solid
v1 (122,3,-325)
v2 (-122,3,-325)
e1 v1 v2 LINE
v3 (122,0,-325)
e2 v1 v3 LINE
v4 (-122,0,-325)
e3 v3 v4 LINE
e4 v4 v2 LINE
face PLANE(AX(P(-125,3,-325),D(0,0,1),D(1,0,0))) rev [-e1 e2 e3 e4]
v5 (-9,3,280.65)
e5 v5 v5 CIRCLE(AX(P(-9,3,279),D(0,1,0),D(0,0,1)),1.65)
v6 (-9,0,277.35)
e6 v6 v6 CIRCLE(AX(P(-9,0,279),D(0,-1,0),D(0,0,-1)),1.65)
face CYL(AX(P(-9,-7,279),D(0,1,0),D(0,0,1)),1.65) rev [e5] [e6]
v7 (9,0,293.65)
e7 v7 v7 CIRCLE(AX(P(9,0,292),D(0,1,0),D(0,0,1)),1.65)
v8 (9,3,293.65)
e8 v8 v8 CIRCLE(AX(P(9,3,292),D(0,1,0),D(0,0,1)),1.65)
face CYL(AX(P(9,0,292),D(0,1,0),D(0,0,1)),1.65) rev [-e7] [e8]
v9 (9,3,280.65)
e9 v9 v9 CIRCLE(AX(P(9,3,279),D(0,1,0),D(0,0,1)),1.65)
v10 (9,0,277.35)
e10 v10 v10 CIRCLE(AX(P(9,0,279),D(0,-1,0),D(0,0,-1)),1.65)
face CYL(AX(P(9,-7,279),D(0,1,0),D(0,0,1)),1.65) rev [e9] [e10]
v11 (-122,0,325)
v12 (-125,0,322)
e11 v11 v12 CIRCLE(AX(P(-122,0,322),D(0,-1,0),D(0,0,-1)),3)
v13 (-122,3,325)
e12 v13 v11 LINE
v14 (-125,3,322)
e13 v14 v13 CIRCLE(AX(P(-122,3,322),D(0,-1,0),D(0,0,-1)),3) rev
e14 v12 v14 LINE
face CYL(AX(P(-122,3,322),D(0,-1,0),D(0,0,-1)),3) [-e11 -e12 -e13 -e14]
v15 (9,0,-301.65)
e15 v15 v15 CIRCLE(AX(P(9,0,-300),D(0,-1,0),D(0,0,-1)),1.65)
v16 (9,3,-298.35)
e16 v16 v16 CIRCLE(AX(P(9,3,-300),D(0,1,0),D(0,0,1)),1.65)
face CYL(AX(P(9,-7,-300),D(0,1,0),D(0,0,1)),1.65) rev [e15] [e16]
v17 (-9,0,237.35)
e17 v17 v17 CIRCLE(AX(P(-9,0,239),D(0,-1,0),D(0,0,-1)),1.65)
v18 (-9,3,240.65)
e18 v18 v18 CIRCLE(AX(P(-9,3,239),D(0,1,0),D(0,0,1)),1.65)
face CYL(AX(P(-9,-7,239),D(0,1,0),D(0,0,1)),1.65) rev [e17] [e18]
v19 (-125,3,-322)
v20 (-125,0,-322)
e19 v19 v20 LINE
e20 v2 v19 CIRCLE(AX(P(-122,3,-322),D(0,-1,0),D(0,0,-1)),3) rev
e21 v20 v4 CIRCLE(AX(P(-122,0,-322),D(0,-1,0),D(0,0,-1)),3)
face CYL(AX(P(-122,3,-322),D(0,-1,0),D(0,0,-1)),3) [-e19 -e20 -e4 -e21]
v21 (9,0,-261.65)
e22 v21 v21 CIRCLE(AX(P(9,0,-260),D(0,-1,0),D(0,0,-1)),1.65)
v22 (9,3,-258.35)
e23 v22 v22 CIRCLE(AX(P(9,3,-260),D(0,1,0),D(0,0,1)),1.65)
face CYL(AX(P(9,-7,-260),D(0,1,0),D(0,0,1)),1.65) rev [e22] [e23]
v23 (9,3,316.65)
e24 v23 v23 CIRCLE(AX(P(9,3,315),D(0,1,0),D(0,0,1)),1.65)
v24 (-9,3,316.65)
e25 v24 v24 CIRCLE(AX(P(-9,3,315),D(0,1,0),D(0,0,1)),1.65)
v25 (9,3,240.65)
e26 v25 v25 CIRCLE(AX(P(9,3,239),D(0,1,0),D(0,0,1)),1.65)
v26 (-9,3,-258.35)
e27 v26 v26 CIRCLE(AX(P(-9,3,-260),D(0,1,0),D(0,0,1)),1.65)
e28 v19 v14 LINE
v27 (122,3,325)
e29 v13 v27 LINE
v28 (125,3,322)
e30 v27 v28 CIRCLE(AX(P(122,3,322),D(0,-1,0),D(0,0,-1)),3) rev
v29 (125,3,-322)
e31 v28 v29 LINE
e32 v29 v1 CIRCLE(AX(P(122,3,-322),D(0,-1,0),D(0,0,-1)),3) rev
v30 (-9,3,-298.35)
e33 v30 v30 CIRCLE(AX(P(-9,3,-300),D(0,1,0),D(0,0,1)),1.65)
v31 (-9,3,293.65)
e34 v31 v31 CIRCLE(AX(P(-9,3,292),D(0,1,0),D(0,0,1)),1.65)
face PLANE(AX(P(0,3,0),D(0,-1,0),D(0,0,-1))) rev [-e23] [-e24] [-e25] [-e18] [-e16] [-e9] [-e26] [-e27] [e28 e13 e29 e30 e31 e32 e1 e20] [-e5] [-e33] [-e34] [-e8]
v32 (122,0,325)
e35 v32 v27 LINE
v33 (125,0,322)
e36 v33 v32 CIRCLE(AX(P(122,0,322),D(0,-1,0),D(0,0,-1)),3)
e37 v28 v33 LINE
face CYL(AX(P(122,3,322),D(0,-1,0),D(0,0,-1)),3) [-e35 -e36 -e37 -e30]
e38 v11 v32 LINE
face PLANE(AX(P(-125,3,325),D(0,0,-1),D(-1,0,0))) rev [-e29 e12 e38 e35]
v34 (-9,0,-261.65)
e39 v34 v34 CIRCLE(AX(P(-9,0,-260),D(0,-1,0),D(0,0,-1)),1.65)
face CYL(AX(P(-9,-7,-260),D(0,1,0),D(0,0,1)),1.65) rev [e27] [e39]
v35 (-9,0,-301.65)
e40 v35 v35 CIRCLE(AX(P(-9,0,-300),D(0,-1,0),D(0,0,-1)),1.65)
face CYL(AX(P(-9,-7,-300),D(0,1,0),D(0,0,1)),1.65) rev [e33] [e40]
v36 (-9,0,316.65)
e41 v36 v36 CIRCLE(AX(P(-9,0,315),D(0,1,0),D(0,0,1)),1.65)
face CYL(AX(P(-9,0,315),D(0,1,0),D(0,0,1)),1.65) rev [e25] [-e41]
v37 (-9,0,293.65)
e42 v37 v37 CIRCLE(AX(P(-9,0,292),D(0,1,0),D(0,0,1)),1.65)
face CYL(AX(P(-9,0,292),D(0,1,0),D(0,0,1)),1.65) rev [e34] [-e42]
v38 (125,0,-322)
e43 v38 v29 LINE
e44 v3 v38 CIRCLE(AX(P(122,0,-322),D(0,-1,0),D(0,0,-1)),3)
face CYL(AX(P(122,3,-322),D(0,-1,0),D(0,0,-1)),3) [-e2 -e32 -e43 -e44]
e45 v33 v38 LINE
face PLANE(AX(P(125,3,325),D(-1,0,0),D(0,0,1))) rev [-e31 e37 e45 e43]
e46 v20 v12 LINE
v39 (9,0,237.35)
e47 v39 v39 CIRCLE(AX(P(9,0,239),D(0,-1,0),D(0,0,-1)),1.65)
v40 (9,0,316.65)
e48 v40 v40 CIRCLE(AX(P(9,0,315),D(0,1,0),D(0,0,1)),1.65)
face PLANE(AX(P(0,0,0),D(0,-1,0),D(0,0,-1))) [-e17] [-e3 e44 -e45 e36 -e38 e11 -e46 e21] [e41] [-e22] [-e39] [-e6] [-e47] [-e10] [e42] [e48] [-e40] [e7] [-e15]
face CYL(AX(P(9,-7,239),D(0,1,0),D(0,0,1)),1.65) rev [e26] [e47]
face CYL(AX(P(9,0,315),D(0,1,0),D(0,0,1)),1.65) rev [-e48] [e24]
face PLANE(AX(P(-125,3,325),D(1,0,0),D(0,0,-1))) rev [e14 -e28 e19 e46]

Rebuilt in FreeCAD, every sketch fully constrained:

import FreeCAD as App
import Part
import Sketcher
Q = App.Units.Quantity


def edges_at(feature, points):
    """Names of the edges that pass closest to the given points."""
    edges = feature.Shape.Edges
    near = lambda p: min(range(len(edges)), key=lambda i: edges[i].distToShape(Part.Vertex(*p))[0])
    return sorted({f"Edge{near(p) + 1}" for p in points})

doc = App.newDocument("Part")
params = doc.addObject("Spreadsheet::Sheet", "Params")
for row, (alias, value) in enumerate([
    ("sketch1_width", "250 mm"),
    ("sketch1_height", "650 mm"),
    ("pad1_length", "3 mm"),
    ("sketch2_diameter", "3.3 mm"),
    ("pocket1_length", "10 mm"),
    ("sketch3_diameter", "3.3 mm"),
    ("pocket2_length", "3 mm"),
    ("fillet_radius", "3 mm"),
], start=1):
    params.set(f"A{row}", alias)
    params.set(f"B{row}", "=" + value)
    params.setAlias(f"B{row}", alias)

body = doc.addObject("PartDesign::Body", "Body")

sketch1 = body.newObject("Sketcher::SketchObject", "Sketch")
sketch1.AttachmentSupport = (doc.getObject("XZ_Plane"), [""])
sketch1.MapMode = "FlatFace"
sketch1.addGeometry(Part.LineSegment(App.Vector(-125, -325, 0), App.Vector(-125, 325, 0)), False)
sketch1.addGeometry(Part.LineSegment(App.Vector(-125, 325, 0), App.Vector(125, 325, 0)), False)
sketch1.addGeometry(Part.LineSegment(App.Vector(125, 325, 0), App.Vector(125, -325, 0)), False)
sketch1.addGeometry(Part.LineSegment(App.Vector(125, -325, 0), App.Vector(-125, -325, 0)), False)
sketch1.addConstraint(Sketcher.Constraint("Coincident", 0, 2, 1, 1))
sketch1.addConstraint(Sketcher.Constraint("Coincident", 1, 2, 2, 1))
sketch1.addConstraint(Sketcher.Constraint("Coincident", 2, 2, 3, 1))
sketch1.addConstraint(Sketcher.Constraint("Coincident", 3, 2, 0, 1))
sketch1.addConstraint(Sketcher.Constraint("Vertical", 0))
sketch1.addConstraint(Sketcher.Constraint("Horizontal", 1))
sketch1.addConstraint(Sketcher.Constraint("Vertical", 2))
sketch1.addConstraint(Sketcher.Constraint("Horizontal", 3))
sketch1.addConstraint(Sketcher.Constraint("Symmetric", 0, 2, 2, 2, -1, 1))
sketch1.addConstraint(Sketcher.Constraint("DistanceX", 1, 1, 1, 2, Q("250 mm")))
sketch1.addConstraint(Sketcher.Constraint("DistanceY", 0, 1, 0, 2, Q("650 mm")))
sketch1.setExpression("Constraints[9]", "Params.sketch1_width")
sketch1.setExpression("Constraints[10]", "Params.sketch1_height")
pad1 = body.newObject("PartDesign::Pad", "Pad")
pad1.Profile = sketch1
pad1.setExpression("Length", "Params.pad1_length")
pad1.Reversed = True

sketch2 = body.newObject("Sketcher::SketchObject", "Sketch001")
sketch2.AttachmentSupport = (doc.getObject("XZ_Plane"), [""])
sketch2.MapMode = "FlatFace"
sketch2.AttachmentOffset = App.Placement(App.Vector(0, 0, -3), App.Rotation())
sketch2.addGeometry(Part.Circle(App.Vector(9, 279, 0), App.Vector(0, 0, 1), 1.65), False)
sketch2.addGeometry(Part.Circle(App.Vector(-9, 279, 0), App.Vector(0, 0, 1), 1.65), False)
sketch2.addGeometry(Part.Circle(App.Vector(9, 239, 0), App.Vector(0, 0, 1), 1.65), False)
sketch2.addGeometry(Part.Circle(App.Vector(-9, 239, 0), App.Vector(0, 0, 1), 1.65), False)
sketch2.addGeometry(Part.Circle(App.Vector(9, -300, 0), App.Vector(0, 0, 1), 1.65), False)
sketch2.addGeometry(Part.Circle(App.Vector(-9, -300, 0), App.Vector(0, 0, 1), 1.65), False)
sketch2.addGeometry(Part.Circle(App.Vector(9, -260, 0), App.Vector(0, 0, 1), 1.65), False)
sketch2.addGeometry(Part.Circle(App.Vector(-9, -260, 0), App.Vector(0, 0, 1), 1.65), False)
sketch2.addConstraint(Sketcher.Constraint("Equal", 0, 1))
sketch2.addConstraint(Sketcher.Constraint("Equal", 1, 2))
sketch2.addConstraint(Sketcher.Constraint("Equal", 2, 3))
sketch2.addConstraint(Sketcher.Constraint("Equal", 3, 4))
sketch2.addConstraint(Sketcher.Constraint("Equal", 4, 5))
sketch2.addConstraint(Sketcher.Constraint("Equal", 5, 6))
sketch2.addConstraint(Sketcher.Constraint("Equal", 6, 7))
sketch2.addConstraint(Sketcher.Constraint("Symmetric", 0, 3, 1, 3, -2))
sketch2.addConstraint(Sketcher.Constraint("Symmetric", 2, 3, 3, 3, -2))
sketch2.addConstraint(Sketcher.Constraint("Symmetric", 4, 3, 5, 3, -2))
sketch2.addConstraint(Sketcher.Constraint("Symmetric", 6, 3, 7, 3, -2))
sketch2.addConstraint(Sketcher.Constraint("Vertical", 0, 3, 2, 3))
sketch2.addConstraint(Sketcher.Constraint("Vertical", 2, 3, 4, 3))
sketch2.addConstraint(Sketcher.Constraint("Vertical", 4, 3, 6, 3))
sketch2.addConstraint(Sketcher.Constraint("Diameter", 0, Q("3.3 mm")))
sketch2.addConstraint(Sketcher.Constraint("DistanceX", -1, 1, 0, 3, Q("9 mm")))
sketch2.addConstraint(Sketcher.Constraint("DistanceY", -1, 1, 0, 3, Q("279 mm")))
sketch2.addConstraint(Sketcher.Constraint("DistanceY", -1, 1, 2, 3, Q("239 mm")))
sketch2.addConstraint(Sketcher.Constraint("DistanceY", 4, 3, -1, 1, Q("300 mm")))
sketch2.addConstraint(Sketcher.Constraint("DistanceY", 6, 3, -1, 1, Q("260 mm")))
sketch2.setExpression("Constraints[14]", "Params.sketch2_diameter")
pocket1 = body.newObject("PartDesign::Pocket", "Pocket")
pocket1.Profile = sketch2
pocket1.setExpression("Length", "Params.pocket1_length")
pocket1.Reversed = True

sketch3 = body.newObject("Sketcher::SketchObject", "Sketch002")
sketch3.AttachmentSupport = (doc.getObject("XZ_Plane"), [""])
sketch3.MapMode = "FlatFace"
sketch3.AttachmentOffset = App.Placement(App.Vector(0, 0, -3), App.Rotation())
sketch3.addGeometry(Part.Circle(App.Vector(9, 292, 0), App.Vector(0, 0, 1), 1.65), False)
sketch3.addGeometry(Part.Circle(App.Vector(-9, 292, 0), App.Vector(0, 0, 1), 1.65), False)
sketch3.addGeometry(Part.Circle(App.Vector(-9, 315, 0), App.Vector(0, 0, 1), 1.65), False)
sketch3.addGeometry(Part.Circle(App.Vector(9, 315, 0), App.Vector(0, 0, 1), 1.65), False)
sketch3.addConstraint(Sketcher.Constraint("Equal", 0, 1))
sketch3.addConstraint(Sketcher.Constraint("Equal", 1, 2))
sketch3.addConstraint(Sketcher.Constraint("Equal", 2, 3))
sketch3.addConstraint(Sketcher.Constraint("Symmetric", 0, 3, 1, 3, -2))
sketch3.addConstraint(Sketcher.Constraint("Symmetric", 2, 3, 3, 3, -2))
sketch3.addConstraint(Sketcher.Constraint("Vertical", 1, 3, 2, 3))
sketch3.addConstraint(Sketcher.Constraint("Diameter", 0, Q("3.3 mm")))
sketch3.addConstraint(Sketcher.Constraint("DistanceX", -1, 1, 0, 3, Q("9 mm")))
sketch3.addConstraint(Sketcher.Constraint("DistanceY", -1, 1, 0, 3, Q("292 mm")))
sketch3.addConstraint(Sketcher.Constraint("DistanceY", -1, 1, 2, 3, Q("315 mm")))
sketch3.setExpression("Constraints[6]", "Params.sketch3_diameter")
pocket2 = body.newObject("PartDesign::Pocket", "Pocket001")
pocket2.Profile = sketch3
pocket2.setExpression("Length", "Params.pocket2_length")
pocket2.Reversed = True
doc.recompute()

fillet = body.newObject("PartDesign::Fillet", "Fillet")
fillet.Base = (pocket2, edges_at(pocket2, [
    (125, 1.5, 325),
    (-125, 1.5, 325),
    (-125, 1.5, -325),
    (125, 1.5, -325),
]))
fillet.setExpression("Radius", "Params.fillet_radius")

doc.recompute()
